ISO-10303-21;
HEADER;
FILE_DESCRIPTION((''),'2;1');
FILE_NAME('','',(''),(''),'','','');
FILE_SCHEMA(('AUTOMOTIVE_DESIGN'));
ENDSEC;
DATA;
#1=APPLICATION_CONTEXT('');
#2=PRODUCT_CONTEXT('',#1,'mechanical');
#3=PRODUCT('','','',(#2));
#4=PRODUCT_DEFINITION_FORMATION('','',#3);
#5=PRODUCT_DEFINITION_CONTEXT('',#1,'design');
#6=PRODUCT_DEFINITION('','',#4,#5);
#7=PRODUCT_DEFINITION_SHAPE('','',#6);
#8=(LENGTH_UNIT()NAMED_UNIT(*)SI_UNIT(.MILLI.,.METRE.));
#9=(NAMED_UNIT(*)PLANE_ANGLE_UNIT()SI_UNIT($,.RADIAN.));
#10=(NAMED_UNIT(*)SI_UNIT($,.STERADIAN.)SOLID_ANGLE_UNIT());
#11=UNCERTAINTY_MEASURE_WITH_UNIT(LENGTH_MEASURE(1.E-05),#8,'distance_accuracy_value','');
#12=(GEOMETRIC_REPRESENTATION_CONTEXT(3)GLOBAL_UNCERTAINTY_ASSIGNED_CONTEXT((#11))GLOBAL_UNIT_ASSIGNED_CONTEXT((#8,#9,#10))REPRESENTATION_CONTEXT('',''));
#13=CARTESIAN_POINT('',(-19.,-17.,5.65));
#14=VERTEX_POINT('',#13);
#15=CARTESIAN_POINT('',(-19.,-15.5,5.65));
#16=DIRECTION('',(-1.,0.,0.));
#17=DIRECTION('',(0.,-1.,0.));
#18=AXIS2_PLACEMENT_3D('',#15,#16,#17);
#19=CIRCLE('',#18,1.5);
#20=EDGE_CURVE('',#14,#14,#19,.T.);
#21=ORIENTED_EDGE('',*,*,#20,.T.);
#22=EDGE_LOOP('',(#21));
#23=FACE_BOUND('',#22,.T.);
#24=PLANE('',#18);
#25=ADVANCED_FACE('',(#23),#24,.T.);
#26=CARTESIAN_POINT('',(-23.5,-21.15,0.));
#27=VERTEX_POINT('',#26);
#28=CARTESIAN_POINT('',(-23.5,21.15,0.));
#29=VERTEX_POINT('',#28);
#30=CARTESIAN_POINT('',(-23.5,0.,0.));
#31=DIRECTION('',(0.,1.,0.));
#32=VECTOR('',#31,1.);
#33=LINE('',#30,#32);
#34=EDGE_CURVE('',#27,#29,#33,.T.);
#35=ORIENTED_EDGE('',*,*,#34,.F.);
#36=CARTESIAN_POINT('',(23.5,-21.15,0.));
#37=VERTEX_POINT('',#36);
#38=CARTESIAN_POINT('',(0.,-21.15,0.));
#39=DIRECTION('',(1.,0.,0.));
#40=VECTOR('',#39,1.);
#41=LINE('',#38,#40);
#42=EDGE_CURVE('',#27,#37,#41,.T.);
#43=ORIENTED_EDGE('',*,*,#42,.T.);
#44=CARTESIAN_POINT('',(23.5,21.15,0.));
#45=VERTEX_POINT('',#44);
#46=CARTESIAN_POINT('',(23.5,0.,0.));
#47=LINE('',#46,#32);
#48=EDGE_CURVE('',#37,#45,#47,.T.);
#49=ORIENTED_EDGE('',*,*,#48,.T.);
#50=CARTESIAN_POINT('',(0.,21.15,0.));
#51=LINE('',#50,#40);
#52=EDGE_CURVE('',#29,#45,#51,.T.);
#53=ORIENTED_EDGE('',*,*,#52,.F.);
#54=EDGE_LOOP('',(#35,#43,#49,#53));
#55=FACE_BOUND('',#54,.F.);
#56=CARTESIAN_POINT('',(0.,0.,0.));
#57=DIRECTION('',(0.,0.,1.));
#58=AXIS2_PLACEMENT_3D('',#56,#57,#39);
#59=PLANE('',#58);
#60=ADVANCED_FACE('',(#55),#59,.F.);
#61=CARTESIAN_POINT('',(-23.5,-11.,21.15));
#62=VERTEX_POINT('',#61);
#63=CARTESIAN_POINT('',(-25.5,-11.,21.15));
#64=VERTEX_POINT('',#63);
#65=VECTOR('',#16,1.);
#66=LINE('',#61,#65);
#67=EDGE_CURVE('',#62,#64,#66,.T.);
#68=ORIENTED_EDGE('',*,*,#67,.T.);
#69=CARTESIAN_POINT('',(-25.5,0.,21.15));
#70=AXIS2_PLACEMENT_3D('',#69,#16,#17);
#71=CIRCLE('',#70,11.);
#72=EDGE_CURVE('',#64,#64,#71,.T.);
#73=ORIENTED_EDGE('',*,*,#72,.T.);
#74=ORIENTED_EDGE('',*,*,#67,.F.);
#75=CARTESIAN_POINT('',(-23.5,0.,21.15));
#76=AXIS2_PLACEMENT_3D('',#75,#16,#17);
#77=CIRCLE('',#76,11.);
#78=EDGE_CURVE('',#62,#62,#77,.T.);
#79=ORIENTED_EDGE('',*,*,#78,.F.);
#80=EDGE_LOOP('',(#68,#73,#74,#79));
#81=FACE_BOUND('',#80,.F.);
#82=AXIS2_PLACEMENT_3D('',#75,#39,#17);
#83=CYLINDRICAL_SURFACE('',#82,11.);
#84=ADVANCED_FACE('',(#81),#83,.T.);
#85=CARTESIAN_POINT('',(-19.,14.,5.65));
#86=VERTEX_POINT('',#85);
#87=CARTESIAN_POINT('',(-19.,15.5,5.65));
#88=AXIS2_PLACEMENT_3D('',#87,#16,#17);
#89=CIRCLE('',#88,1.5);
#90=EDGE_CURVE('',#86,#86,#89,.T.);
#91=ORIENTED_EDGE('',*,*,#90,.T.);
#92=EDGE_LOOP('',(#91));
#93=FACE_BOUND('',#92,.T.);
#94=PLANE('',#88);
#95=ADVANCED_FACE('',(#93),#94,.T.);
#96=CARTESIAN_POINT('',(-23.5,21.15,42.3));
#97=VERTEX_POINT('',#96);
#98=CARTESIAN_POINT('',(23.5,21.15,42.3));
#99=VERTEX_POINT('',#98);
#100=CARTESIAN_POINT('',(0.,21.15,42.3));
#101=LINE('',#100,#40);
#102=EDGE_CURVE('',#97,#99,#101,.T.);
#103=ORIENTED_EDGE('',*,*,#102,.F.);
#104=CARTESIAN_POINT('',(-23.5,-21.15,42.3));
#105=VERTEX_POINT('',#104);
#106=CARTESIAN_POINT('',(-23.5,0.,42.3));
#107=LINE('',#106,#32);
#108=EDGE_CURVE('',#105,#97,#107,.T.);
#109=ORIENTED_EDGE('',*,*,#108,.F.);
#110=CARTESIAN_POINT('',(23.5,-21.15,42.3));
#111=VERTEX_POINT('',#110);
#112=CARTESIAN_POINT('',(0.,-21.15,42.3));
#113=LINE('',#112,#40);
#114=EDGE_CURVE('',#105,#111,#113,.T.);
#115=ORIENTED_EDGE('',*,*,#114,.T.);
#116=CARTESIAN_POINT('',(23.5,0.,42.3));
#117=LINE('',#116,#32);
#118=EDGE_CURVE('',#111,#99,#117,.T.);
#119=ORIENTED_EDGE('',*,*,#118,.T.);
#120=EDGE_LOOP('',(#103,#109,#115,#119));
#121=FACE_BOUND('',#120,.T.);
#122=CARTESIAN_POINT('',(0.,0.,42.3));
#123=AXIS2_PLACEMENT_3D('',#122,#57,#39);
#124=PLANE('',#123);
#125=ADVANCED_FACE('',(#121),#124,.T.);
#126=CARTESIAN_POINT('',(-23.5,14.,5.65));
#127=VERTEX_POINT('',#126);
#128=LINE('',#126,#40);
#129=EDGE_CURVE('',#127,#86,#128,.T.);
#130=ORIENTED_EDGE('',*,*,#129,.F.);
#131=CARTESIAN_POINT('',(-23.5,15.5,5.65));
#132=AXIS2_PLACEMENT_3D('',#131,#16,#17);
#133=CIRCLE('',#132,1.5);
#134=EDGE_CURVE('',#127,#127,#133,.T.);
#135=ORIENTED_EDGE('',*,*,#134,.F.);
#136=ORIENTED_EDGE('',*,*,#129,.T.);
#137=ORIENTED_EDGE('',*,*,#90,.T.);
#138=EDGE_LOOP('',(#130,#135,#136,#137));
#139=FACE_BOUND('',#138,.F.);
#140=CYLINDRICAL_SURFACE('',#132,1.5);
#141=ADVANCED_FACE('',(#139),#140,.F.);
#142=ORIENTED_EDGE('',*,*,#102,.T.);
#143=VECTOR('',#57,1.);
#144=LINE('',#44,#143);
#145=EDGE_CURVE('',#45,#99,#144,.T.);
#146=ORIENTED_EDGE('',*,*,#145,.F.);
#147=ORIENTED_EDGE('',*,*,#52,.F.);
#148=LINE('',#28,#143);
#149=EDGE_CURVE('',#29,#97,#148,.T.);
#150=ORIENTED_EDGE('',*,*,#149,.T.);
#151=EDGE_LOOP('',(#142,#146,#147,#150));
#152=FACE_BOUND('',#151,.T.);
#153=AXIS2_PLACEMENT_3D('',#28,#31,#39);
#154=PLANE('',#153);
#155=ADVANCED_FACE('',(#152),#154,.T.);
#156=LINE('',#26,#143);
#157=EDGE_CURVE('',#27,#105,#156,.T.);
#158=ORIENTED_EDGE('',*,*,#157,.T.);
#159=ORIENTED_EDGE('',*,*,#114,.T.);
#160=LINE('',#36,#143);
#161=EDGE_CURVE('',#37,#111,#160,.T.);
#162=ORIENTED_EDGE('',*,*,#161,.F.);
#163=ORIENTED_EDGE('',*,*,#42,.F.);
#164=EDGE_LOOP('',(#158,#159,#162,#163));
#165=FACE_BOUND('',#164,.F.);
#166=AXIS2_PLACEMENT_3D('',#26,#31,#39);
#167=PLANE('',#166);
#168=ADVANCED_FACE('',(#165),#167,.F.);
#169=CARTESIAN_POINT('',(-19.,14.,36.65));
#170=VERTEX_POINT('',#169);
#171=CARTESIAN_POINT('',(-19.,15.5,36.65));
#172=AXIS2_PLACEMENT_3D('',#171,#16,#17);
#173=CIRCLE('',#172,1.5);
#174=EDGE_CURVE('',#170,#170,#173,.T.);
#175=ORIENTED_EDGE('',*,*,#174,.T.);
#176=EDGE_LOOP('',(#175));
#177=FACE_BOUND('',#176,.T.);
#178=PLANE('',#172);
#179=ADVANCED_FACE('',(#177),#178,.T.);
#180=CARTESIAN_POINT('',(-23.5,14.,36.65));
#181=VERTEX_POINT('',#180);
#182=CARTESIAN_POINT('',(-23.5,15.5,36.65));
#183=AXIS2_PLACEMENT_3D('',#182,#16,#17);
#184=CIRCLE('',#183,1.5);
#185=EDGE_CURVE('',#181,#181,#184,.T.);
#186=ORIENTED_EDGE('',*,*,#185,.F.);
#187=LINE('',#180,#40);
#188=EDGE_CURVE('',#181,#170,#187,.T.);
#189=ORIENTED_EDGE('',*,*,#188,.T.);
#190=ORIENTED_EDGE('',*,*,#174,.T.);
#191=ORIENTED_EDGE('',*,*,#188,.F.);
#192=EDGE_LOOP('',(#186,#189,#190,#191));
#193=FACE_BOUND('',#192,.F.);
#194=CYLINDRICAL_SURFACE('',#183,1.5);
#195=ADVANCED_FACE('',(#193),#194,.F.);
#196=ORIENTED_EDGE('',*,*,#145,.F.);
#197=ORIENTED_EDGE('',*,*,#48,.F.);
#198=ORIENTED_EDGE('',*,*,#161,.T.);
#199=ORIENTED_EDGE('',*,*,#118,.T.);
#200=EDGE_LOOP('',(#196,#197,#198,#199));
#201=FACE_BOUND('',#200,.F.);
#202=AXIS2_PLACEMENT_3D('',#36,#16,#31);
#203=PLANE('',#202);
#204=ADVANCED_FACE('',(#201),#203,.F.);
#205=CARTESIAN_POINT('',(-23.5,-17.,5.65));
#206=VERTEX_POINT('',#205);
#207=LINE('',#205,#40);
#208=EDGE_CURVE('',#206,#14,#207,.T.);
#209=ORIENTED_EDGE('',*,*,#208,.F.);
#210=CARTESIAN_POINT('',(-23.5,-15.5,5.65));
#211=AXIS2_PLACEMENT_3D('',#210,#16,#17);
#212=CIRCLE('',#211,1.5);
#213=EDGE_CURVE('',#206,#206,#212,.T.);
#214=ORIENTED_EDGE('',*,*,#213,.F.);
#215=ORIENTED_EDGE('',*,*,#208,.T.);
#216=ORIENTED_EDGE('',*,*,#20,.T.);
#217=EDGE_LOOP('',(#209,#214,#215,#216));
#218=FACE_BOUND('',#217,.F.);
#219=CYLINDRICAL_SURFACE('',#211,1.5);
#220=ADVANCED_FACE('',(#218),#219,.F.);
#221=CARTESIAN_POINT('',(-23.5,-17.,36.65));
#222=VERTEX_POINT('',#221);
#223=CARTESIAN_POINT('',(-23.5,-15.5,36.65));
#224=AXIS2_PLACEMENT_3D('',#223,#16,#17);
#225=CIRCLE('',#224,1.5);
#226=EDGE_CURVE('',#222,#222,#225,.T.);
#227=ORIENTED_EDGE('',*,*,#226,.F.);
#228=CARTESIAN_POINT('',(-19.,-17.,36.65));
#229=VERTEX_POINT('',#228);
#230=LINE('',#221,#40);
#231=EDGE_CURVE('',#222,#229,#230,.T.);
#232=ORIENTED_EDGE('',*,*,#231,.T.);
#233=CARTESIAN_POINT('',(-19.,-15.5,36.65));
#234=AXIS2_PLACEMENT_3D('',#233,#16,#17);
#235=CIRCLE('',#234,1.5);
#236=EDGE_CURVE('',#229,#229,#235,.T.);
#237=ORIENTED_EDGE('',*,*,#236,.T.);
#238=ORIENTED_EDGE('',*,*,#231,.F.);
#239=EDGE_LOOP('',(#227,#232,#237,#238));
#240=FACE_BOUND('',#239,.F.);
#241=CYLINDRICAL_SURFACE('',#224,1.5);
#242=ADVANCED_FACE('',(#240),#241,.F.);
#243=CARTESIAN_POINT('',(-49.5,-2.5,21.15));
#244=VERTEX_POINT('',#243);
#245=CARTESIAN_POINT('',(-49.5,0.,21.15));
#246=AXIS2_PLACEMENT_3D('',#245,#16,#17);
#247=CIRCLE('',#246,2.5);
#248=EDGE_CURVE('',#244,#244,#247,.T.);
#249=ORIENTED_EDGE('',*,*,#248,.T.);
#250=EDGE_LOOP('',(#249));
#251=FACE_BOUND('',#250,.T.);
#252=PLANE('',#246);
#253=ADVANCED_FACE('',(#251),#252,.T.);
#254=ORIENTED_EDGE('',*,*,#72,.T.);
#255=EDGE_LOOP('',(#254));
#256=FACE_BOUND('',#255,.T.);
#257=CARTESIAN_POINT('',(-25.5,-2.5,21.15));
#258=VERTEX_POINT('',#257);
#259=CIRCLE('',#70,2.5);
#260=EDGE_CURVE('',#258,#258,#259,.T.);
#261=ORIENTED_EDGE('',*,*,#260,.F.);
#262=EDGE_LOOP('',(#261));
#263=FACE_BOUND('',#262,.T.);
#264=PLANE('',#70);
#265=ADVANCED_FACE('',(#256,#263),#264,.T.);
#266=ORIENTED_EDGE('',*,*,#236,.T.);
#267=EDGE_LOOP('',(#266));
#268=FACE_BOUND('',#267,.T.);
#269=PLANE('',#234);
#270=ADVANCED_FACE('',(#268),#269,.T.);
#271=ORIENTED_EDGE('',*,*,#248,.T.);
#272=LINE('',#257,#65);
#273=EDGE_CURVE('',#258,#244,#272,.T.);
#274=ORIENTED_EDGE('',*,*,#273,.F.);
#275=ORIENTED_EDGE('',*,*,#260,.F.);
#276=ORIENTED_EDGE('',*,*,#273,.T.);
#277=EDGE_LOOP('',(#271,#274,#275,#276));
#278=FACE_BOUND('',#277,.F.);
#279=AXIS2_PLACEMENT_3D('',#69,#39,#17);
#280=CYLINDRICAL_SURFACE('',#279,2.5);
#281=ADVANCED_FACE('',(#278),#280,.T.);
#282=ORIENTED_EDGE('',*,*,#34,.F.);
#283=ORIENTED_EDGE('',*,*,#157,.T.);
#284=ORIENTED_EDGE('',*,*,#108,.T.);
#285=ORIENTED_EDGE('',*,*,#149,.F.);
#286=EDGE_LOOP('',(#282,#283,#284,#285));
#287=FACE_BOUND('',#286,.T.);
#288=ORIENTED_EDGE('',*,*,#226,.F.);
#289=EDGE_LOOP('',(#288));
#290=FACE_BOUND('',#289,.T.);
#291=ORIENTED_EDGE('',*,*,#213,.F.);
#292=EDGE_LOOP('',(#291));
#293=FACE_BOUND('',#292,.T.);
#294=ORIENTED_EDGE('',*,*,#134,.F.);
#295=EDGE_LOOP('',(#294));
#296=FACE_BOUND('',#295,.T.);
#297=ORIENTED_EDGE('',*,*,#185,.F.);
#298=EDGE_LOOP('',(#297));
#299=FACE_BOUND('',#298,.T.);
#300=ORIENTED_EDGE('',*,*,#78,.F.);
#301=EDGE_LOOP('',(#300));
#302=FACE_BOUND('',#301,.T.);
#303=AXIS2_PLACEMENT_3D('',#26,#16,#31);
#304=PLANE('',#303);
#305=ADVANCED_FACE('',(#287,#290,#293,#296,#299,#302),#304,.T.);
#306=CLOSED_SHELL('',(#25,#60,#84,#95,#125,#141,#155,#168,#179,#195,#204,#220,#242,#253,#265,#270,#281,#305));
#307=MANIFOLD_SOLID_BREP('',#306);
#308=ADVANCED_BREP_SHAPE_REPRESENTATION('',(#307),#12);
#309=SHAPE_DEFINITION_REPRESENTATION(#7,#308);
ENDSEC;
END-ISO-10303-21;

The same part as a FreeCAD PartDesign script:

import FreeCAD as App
import Part
import Sketcher
from FreeCAD import Vector


def add_polygon(sketch, points):
    """Adds a closed chain of lines whose ends are joined by coincident constraints."""
    first, n = sketch.GeometryCount, len(points)
    for a, b in zip(points, points[1:] + points[:1]):
        sketch.addGeometry(Part.LineSegment(App.Vector(*a, 0), App.Vector(*b, 0)), False)
    for i in range(n):
        sketch.addConstraint(Sketcher.Constraint("Coincident", first + i, 2, first + (i + 1) % n, 1))

doc = App.newDocument("Part")
body = doc.addObject("PartDesign::Body", "Body")

sketch1 = body.newObject("Sketcher::SketchObject", "Sketch")
sketch1.AttachmentSupport = (doc.getObject("XY_Plane"), [""])
sketch1.MapMode = "FlatFace"
add_polygon(sketch1, [(-24, 21), (-24, -21), (24, -21), (24, 21)])
sketch1.addConstraint(Sketcher.Constraint("Vertical", 0))
sketch1.addConstraint(Sketcher.Constraint("Horizontal", 1))
sketch1.addConstraint(Sketcher.Constraint("Vertical", 2))
sketch1.addConstraint(Sketcher.Constraint("Horizontal", 3))
sketch1.addConstraint(Sketcher.Constraint("Symmetric", 0, 2, 2, 2, -1, 1))
sketch1.addConstraint(Sketcher.Constraint("DistanceX", 1, 1, 1, 2, 47.0))
sketch1.addConstraint(Sketcher.Constraint("DistanceY", 0, 2, 0, 1, 42.3))
pad1 = body.newObject("PartDesign::Pad", "Pad")
pad1.Profile = sketch1
pad1.Length = 42.3

sketch2 = body.newObject("Sketcher::SketchObject", "Sketch001")
sketch2.AttachmentSupport = (doc.getObject("YZ_Plane"), [""])
sketch2.MapMode = "FlatFace"
sketch2.AttachmentOffset = App.Placement(Vector(0, 0, -23.5), App.Rotation())
sketch2.addGeometry(Part.Circle(Vector(15.5, 36.6, 0), Vector(0, 0, 1), 1.5), False)
sketch2.addGeometry(Part.Circle(Vector(-15.5, 36.6, 0), Vector(0, 0, 1), 1.5), False)
sketch2.addGeometry(Part.Circle(Vector(15.5, 5.7, 0), Vector(0, 0, 1), 1.5), False)
sketch2.addGeometry(Part.Circle(Vector(-15.5, 5.7, 0), Vector(0, 0, 1), 1.5), False)
sketch2.addConstraint(Sketcher.Constraint("Equal", 0, 1))
sketch2.addConstraint(Sketcher.Constraint("Equal", 1, 2))
sketch2.addConstraint(Sketcher.Constraint("Equal", 2, 3))
sketch2.addConstraint(Sketcher.Constraint("Symmetric", 0, 3, 1, 3, -2))
sketch2.addConstraint(Sketcher.Constraint("Symmetric", 2, 3, 3, 3, -2))
sketch2.addConstraint(Sketcher.Constraint("Vertical", 0, 3, 2, 3))
sketch2.addConstraint(Sketcher.Constraint("Diameter", 0, 3.0))
sketch2.addConstraint(Sketcher.Constraint("DistanceX", 1, 3, 0, 3, 31.0))
sketch2.addConstraint(Sketcher.Constraint("DistanceY", 2, 3, 0, 3, 31.0))
sketch2.addConstraint(Sketcher.Constraint("DistanceY", -1, 1, 0, 3, 36.65))
pocket1 = body.newObject("PartDesign::Pocket", "Pocket")
pocket1.Profile = sketch2
pocket1.Length = 4.5
pocket1.Reversed = True

sketch3 = body.newObject("Sketcher::SketchObject", "Sketch002")
sketch3.AttachmentSupport = (doc.getObject("YZ_Plane"), [""])
sketch3.MapMode = "FlatFace"
sketch3.AttachmentOffset = App.Placement(Vector(0, 0, -23.5), App.Rotation())
sketch3.addGeometry(Part.Circle(Vector(0, 21, 0), Vector(0, 0, 1), 11), False)
sketch3.addConstraint(Sketcher.Constraint("PointOnObject", 0, 3, -2))
sketch3.addConstraint(Sketcher.Constraint("Diameter", 0, 22.0))
sketch3.addConstraint(Sketcher.Constraint("DistanceY", -1, 1, 0, 3, 21.15))
pad2 = body.newObject("PartDesign::Pad", "Pad001")
pad2.Profile = sketch3
pad2.Length = 2
pad2.Reversed = True

sketch4 = body.newObject("Sketcher::SketchObject", "Sketch003")
sketch4.AttachmentSupport = (doc.getObject("YZ_Plane"), [""])
sketch4.MapMode = "FlatFace"
sketch4.AttachmentOffset = App.Placement(Vector(0, 0, -25.5), App.Rotation())
sketch4.addGeometry(Part.Circle(Vector(0, 21.1, 0), Vector(0, 0, 1), 2.5), False)
sketch4.addConstraint(Sketcher.Constraint("PointOnObject", 0, 3, -2))
sketch4.addConstraint(Sketcher.Constraint("Diameter", 0, 5.0))
sketch4.addConstraint(Sketcher.Constraint("DistanceY", -1, 1, 0, 3, 21.15))
pad3 = body.newObject("PartDesign::Pad", "Pad002")
pad3.Profile = sketch4
pad3.Length = 24
pad3.Reversed = True

doc.recompute()
